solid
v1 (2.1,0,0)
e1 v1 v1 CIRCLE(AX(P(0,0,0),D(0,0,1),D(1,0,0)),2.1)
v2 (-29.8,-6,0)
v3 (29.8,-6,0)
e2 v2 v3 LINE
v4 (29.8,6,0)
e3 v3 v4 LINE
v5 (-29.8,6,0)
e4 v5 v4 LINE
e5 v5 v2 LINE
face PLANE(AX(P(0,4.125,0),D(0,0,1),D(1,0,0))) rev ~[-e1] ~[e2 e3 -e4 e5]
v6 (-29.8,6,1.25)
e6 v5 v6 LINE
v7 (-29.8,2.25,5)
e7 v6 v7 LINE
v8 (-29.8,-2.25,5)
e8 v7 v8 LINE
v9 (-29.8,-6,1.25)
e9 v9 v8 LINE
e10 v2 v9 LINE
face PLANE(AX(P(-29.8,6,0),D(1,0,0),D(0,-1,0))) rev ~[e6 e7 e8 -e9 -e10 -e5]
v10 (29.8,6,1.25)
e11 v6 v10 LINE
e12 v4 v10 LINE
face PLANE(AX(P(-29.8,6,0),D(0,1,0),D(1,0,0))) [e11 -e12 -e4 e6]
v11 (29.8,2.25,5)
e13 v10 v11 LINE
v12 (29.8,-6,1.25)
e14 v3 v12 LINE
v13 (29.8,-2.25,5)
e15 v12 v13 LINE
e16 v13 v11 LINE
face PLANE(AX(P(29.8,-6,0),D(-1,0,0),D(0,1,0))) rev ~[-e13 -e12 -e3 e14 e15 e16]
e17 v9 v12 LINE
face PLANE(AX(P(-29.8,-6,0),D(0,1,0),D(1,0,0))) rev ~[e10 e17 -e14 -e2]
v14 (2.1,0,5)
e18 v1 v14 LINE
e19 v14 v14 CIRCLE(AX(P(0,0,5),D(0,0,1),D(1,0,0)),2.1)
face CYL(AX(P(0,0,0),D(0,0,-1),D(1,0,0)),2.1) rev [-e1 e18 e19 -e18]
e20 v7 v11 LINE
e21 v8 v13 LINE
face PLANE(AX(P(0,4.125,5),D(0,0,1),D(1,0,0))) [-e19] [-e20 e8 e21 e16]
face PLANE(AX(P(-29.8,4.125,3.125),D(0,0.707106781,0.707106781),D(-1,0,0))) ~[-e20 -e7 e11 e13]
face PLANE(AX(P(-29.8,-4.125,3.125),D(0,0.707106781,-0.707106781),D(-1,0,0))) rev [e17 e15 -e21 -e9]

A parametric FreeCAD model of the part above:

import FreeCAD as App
import Part
import Sketcher
from FreeCAD import Vector
Q = App.Units.Quantity


def edges_at(feature, points):
    """Names of the edges that pass closest to the given points."""
    edges = feature.Shape.Edges
    near = lambda p: min(range(len(edges)), key=lambda i: edges[i].distToShape(Part.Vertex(*p))[0])
    return sorted({f"Edge{near(p) + 1}" for p in points})

doc = App.newDocument("Part")
params = doc.addObject("Spreadsheet::Sheet", "Params")
for row, (alias, value) in enumerate([
    ("sketch1_diameter", "4.2 mm"),
    ("sketch1_height", "12 mm"),
    ("sketch1_width", "59.6 mm"),
    ("pad1_length", "5 mm"),
    ("chamfer_size", "3.75 mm"),
], start=1):
    params.set(f"A{row}", alias)
    params.set(f"B{row}", "=" + value)
    params.setAlias(f"B{row}", alias)

body = doc.addObject("PartDesign::Body", "Body")

sketch1 = body.newObject("Sketcher::SketchObject", "Sketch")
sketch1.AttachmentSupport = (doc.getObject("XY_Plane"), [""])
sketch1.MapMode = "FlatFace"
sketch1.addGeometry(Part.LineSegment(Vector(-29.8, 6, 0), Vector(-29.8, -6, 0)), False)
sketch1.addGeometry(Part.LineSegment(Vector(-29.8, -6, 0), Vector(29.8, -6, 0)), False)
sketch1.addGeometry(Part.LineSegment(Vector(29.8, -6, 0), Vector(29.8, 6, 0)), False)
sketch1.addGeometry(Part.LineSegment(Vector(29.8, 6, 0), Vector(-29.8, 6, 0)), False)
sketch1.addGeometry(Part.Circle(Vector(0, 0, 0), Vector(0, 0, 1), 2.1), False)
sketch1.addConstraint(Sketcher.Constraint("Coincident", 0, 2, 1, 1))
sketch1.addConstraint(Sketcher.Constraint("Coincident", 1, 2, 2, 1))
sketch1.addConstraint(Sketcher.Constraint("Coincident", 2, 2, 3, 1))
sketch1.addConstraint(Sketcher.Constraint("Coincident", 3, 2, 0, 1))
sketch1.addConstraint(Sketcher.Constraint("Vertical", 0))
sketch1.addConstraint(Sketcher.Constraint("Horizontal", 1))
sketch1.addConstraint(Sketcher.Constraint("Vertical", 2))
sketch1.addConstraint(Sketcher.Constraint("Horizontal", 3))
sketch1.addConstraint(Sketcher.Constraint("Coincident", 4, 3, -1, 1))
sketch1.addConstraint(Sketcher.Constraint("Symmetric", 0, 2, 2, 2, -1, 1))
sketch1.addConstraint(Sketcher.Constraint("Diameter", 4, Q("4.2 mm")))
sketch1.addConstraint(Sketcher.Constraint("DistanceY", 0, 2, 0, 1, Q("12 mm")))
sketch1.addConstraint(Sketcher.Constraint("DistanceX", 1, 1, 1, 2, Q("59.6 mm")))
sketch1.setExpression("Constraints[10]", "Params.sketch1_diameter")
sketch1.setExpression("Constraints[11]", "Params.sketch1_height")
sketch1.setExpression("Constraints[12]", "Params.sketch1_width")
pad1 = body.newObject("PartDesign::Pad", "Pad")
pad1.Profile = sketch1
pad1.setExpression("Length", "Params.pad1_length")
doc.recompute()

chamfer = body.newObject("PartDesign::Chamfer", "Chamfer")
chamfer.Base = (pad1, edges_at(pad1, [(0, -6, 5), (0, 6, 5)]))
chamfer.setExpression("Size", "Params.chamfer_size")

doc.recompute()
